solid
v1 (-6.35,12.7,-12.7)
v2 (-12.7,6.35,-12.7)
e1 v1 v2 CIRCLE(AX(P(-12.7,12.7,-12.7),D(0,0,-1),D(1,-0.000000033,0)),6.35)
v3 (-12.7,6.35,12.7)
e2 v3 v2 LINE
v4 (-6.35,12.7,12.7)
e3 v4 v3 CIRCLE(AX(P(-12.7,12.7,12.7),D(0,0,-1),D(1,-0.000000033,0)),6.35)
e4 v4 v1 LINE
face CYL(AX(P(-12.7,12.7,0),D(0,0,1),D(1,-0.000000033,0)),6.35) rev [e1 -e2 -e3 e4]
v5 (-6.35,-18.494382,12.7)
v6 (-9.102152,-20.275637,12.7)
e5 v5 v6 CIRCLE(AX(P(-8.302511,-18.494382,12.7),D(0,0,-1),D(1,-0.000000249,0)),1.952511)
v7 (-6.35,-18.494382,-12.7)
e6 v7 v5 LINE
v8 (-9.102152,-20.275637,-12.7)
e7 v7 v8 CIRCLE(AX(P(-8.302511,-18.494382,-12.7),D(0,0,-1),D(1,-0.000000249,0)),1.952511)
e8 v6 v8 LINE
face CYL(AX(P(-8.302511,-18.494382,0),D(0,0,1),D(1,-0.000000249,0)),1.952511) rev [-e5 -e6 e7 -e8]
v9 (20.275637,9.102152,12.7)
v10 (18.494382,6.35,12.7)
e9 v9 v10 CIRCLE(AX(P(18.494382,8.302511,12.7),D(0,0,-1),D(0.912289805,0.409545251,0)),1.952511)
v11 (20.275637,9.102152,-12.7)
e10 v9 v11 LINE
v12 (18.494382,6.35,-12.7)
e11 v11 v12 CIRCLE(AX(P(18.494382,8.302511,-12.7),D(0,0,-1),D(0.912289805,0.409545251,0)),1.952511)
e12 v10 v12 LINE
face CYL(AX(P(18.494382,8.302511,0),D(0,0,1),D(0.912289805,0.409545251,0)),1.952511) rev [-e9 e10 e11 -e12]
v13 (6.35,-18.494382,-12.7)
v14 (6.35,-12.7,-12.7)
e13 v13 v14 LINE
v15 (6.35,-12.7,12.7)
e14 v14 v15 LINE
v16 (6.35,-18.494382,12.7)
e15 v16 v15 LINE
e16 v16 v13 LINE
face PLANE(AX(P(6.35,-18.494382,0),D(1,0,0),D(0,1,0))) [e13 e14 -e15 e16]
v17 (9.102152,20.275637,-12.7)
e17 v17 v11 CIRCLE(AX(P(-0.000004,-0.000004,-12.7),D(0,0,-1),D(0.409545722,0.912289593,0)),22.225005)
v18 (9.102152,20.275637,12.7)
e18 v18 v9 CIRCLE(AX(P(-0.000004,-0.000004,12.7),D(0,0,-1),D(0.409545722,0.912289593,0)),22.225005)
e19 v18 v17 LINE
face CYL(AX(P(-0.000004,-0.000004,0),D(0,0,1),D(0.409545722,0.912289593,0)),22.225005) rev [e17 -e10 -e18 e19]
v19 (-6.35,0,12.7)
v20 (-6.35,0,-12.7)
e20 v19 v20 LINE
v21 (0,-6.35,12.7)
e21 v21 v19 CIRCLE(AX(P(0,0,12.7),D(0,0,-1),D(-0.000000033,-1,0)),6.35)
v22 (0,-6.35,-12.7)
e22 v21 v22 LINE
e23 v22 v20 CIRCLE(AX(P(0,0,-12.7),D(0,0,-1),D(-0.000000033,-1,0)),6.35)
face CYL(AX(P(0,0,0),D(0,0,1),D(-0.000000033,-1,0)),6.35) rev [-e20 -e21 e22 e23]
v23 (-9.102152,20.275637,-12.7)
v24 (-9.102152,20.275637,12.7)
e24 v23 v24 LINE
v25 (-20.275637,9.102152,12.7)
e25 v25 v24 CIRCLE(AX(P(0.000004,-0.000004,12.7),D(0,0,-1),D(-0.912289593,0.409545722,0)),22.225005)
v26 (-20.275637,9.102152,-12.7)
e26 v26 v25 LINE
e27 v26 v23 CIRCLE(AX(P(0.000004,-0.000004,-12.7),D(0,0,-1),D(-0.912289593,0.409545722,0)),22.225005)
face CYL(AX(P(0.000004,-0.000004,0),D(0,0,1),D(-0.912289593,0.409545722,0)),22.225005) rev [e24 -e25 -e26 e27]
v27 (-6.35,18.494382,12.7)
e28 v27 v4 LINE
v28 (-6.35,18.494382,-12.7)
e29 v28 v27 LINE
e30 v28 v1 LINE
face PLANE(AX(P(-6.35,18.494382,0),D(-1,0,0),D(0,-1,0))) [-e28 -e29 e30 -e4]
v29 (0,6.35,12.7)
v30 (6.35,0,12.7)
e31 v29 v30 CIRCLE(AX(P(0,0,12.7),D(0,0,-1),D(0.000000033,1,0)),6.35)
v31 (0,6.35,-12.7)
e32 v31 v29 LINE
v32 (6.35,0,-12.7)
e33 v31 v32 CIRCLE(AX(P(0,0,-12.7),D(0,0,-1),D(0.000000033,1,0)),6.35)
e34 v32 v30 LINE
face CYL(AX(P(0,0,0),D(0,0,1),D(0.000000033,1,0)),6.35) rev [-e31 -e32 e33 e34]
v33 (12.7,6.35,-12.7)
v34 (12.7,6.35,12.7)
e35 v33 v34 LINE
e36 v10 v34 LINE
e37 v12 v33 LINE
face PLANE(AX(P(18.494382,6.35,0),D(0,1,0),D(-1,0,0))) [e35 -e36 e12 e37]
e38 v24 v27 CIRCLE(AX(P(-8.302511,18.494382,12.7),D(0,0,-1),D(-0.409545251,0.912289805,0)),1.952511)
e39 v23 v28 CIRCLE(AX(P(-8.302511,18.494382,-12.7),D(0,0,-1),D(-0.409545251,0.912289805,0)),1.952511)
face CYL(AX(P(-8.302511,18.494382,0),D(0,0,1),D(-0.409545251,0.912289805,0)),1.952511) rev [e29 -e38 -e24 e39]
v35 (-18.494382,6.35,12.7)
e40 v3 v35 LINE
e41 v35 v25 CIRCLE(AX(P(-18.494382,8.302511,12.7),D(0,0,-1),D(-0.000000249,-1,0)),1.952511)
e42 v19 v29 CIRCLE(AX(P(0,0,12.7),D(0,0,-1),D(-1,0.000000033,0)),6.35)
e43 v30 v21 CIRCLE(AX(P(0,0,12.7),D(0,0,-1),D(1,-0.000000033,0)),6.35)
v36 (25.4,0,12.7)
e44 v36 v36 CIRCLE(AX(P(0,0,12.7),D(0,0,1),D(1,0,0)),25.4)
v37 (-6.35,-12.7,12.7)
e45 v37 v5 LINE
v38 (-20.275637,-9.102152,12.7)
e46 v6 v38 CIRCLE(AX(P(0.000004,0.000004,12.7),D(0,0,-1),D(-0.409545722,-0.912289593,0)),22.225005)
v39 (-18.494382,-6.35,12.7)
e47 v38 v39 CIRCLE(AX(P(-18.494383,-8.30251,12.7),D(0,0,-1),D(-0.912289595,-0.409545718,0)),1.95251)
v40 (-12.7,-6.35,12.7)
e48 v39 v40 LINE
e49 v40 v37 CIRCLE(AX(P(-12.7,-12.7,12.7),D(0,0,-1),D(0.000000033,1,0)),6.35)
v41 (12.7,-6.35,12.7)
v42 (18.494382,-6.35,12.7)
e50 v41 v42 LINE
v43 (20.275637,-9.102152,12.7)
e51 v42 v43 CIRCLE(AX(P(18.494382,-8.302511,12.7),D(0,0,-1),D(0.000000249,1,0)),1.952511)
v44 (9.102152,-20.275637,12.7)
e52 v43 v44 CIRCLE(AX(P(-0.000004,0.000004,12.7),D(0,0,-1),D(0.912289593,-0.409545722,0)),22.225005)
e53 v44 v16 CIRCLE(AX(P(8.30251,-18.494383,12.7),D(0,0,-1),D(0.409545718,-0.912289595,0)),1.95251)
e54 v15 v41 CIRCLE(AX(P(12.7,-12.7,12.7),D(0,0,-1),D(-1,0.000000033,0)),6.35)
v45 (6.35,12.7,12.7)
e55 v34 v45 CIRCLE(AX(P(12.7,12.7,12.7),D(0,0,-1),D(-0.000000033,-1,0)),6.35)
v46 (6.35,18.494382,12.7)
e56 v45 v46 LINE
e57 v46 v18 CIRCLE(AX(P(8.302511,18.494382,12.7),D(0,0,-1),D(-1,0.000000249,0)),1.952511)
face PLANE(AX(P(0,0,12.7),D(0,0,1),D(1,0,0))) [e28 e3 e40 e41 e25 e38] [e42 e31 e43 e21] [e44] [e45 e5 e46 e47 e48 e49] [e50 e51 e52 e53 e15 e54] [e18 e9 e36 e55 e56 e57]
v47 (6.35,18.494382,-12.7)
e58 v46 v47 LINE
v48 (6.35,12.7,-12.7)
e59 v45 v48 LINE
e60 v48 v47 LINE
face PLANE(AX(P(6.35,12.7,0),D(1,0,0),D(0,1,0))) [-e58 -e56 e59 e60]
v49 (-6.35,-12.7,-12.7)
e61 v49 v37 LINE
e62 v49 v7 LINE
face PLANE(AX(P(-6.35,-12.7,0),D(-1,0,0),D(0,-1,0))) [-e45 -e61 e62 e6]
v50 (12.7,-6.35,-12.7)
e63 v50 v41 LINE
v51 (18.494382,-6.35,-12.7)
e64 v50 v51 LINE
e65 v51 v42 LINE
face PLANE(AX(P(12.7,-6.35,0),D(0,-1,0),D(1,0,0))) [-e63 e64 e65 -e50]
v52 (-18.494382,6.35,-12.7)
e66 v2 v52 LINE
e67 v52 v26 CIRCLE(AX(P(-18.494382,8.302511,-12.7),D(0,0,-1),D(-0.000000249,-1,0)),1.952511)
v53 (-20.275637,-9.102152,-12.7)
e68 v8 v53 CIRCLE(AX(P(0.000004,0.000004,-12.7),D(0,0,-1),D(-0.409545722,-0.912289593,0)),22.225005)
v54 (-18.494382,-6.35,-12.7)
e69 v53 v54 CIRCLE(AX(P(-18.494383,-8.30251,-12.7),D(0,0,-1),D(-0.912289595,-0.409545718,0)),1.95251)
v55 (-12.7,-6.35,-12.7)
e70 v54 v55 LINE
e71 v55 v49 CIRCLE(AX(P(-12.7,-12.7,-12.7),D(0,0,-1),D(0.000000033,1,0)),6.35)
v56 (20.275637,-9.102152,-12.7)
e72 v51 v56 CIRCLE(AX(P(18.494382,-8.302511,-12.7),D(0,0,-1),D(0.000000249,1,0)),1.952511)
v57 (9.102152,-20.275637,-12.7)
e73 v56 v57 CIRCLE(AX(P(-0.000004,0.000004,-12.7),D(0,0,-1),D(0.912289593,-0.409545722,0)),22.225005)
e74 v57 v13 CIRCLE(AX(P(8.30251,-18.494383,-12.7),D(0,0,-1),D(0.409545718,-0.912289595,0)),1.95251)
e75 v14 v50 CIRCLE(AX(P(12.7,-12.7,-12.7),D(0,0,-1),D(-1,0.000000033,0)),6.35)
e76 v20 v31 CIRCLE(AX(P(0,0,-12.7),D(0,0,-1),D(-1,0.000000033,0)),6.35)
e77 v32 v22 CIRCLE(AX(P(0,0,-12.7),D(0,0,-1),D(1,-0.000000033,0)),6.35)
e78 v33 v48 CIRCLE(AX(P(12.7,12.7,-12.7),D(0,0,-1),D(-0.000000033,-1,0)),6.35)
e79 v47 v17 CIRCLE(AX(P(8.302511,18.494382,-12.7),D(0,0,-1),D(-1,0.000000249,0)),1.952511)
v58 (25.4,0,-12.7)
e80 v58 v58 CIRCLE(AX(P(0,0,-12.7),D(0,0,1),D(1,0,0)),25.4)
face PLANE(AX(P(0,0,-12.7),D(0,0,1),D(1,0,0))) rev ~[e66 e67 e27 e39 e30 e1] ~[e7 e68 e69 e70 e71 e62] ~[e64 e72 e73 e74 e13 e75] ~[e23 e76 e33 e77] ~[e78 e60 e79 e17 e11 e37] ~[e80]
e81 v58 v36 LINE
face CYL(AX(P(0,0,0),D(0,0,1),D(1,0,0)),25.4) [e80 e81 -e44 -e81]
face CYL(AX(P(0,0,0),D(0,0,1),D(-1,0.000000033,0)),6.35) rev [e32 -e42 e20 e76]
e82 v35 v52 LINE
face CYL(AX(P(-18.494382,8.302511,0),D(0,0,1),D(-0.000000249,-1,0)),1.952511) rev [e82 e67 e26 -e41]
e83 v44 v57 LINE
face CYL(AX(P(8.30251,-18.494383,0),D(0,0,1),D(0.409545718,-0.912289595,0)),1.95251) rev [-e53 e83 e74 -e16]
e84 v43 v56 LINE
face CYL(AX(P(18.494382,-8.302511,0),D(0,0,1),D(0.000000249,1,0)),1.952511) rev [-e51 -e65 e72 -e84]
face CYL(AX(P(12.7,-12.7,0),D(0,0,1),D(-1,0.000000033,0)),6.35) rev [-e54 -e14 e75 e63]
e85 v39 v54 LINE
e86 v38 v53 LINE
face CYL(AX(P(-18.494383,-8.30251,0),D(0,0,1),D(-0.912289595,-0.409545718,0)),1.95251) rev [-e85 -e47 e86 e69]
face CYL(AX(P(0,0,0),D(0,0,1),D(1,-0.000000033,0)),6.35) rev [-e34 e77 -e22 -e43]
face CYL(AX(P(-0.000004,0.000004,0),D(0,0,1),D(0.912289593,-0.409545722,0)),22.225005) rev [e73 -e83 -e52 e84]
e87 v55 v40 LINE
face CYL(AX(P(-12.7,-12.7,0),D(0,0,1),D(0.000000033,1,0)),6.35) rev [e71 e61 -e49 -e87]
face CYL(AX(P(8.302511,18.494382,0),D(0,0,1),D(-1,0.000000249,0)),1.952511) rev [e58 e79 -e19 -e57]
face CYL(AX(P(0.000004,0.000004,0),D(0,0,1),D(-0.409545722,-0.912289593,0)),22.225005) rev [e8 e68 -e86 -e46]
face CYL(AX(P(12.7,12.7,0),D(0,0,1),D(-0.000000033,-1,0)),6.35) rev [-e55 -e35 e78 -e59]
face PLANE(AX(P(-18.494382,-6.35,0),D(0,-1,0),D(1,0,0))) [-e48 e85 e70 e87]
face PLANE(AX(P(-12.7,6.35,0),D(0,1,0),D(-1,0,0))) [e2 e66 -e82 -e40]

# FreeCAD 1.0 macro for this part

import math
import FreeCAD as App
import Part
import Sketcher
Q = App.Units.Quantity

doc = App.newDocument("Part")
body = doc.addObject("PartDesign::Body", "Body")

# Sketch on XY plane
sketch1 = body.newObject("Sketcher::SketchObject", "Sketch")
sketch1.AttachmentSupport = (doc.getObject("XY_Plane"), [""])
sketch1.MapMode = "FlatFace"
sketch1.addGeometry([
    Part.Circle(App.Vector(0, 0, 0), App.Vector(0, 0, 1), 25.4),  # 0
    Part.LineSegment(App.Vector(-18.494382, -6.35, 0), App.Vector(-12.7, -6.35, 0)),  # 1
    Part.ArcOfCircle(Part.Circle(App.Vector(-12.7, -12.7, 0), App.Vector(0, 0, 1), 6.35), math.radians(0.000002), math.radians(89.999998)),  # 2
    Part.LineSegment(App.Vector(-6.35, -12.7, 0), App.Vector(-6.35, -18.494382, 0)),  # 3
    Part.ArcOfCircle(Part.Circle(App.Vector(-8.302511, -18.494382, 0), App.Vector(0, 0, 1), 1.952511), math.radians(-114.176271), math.radians(-0.000014)),  # 4
    Part.ArcOfCircle(Part.Circle(App.Vector(0.000004, 0.000004, 0), App.Vector(0, 0, 1), 22.225005), math.radians(-155.823699), math.radians(-114.176301)),  # 5
    Part.ArcOfCircle(Part.Circle(App.Vector(-18.494383, -8.30251, 0), App.Vector(0, 0, 1), 1.95251), math.radians(89.999985), math.radians(204.176301)),  # 6
    Part.LineSegment(App.Vector(6.35, -18.494382, 0), App.Vector(6.35, -12.7, 0)),  # 7
    Part.ArcOfCircle(Part.Circle(App.Vector(12.7, -12.7, 0), App.Vector(0, 0, 1), 6.35), math.radians(90.000002), math.radians(179.999998)),  # 8
    Part.LineSegment(App.Vector(12.7, -6.35, 0), App.Vector(18.494382, -6.35, 0)),  # 9
    Part.ArcOfCircle(Part.Circle(App.Vector(18.494382, -8.302511, 0), App.Vector(0, 0, 1), 1.952511), math.radians(-24.176271), math.radians(89.999986)),  # 10
    Part.ArcOfCircle(Part.Circle(App.Vector(-0.000004, 0.000004, 0), App.Vector(0, 0, 1), 22.225005), math.radians(-65.823699), math.radians(-24.176301)),  # 11
    Part.ArcOfCircle(Part.Circle(App.Vector(8.30251, -18.494383, 0), App.Vector(0, 0, 1), 1.95251), math.radians(179.999985), math.radians(294.176301)),  # 12
    Part.ArcOfCircle(Part.Circle(App.Vector(-18.494382, 8.302511, 0), App.Vector(0, 0, 1), 1.952511), math.radians(155.823729), math.radians(269.999986)),  # 13
    Part.ArcOfCircle(Part.Circle(App.Vector(0.000004, -0.000004, 0), App.Vector(0, 0, 1), 22.225005), math.radians(114.176301), math.radians(155.823699)),  # 14
    Part.ArcOfCircle(Part.Circle(App.Vector(-8.302511, 18.494382, 0), App.Vector(0, 0, 1), 1.952511), math.radians(0.000014), math.radians(114.176271)),  # 15
    Part.LineSegment(App.Vector(-6.35, 18.494382, 0), App.Vector(-6.35, 12.7, 0)),  # 16
    Part.ArcOfCircle(Part.Circle(App.Vector(-12.7, 12.7, 0), App.Vector(0, 0, 1), 6.35), math.radians(-89.999998), math.radians(-0.000002)),  # 17
    Part.LineSegment(App.Vector(-12.7, 6.35, 0), App.Vector(-18.494382, 6.35, 0)),  # 18
    Part.ArcOfCircle(Part.Circle(App.Vector(0, 0, 0), App.Vector(0, 0, 1), 6.35), math.radians(90.000002), math.radians(179.999998)),  # 19
    Part.ArcOfCircle(Part.Circle(App.Vector(0, 0, 0), App.Vector(0, 0, 1), 6.35), math.radians(0.000002), math.radians(89.999998)),  # 20
    Part.ArcOfCircle(Part.Circle(App.Vector(0, 0, 0), App.Vector(0, 0, 1), 6.35), math.radians(-89.999998), math.radians(-0.000002)),  # 21
    Part.ArcOfCircle(Part.Circle(App.Vector(0, 0, 0), App.Vector(0, 0, 1), 6.35), math.radians(-179.999998), math.radians(-90.000002)),  # 22
    Part.LineSegment(App.Vector(18.494382, 6.35, 0), App.Vector(12.7, 6.35, 0)),  # 23
    Part.ArcOfCircle(Part.Circle(App.Vector(12.7, 12.7, 0), App.Vector(0, 0, 1), 6.35), math.radians(-179.999998), math.radians(-90.000002)),  # 24
    Part.LineSegment(App.Vector(6.35, 12.7, 0), App.Vector(6.35, 18.494382, 0)),  # 25
    Part.ArcOfCircle(Part.Circle(App.Vector(8.302511, 18.494382, 0), App.Vector(0, 0, 1), 1.952511), math.radians(65.823729), math.radians(179.999986)),  # 26
    Part.ArcOfCircle(Part.Circle(App.Vector(-0.000004, -0.000004, 0), App.Vector(0, 0, 1), 22.225005), math.radians(24.176301), math.radians(65.823699)),  # 27
    Part.ArcOfCircle(Part.Circle(App.Vector(18.494382, 8.302511, 0), App.Vector(0, 0, 1), 1.952511), math.radians(-89.999986), math.radians(24.176271)),  # 28
], False)
sketch1.addConstraint([
    Sketcher.Constraint("Tangent", 1, 2, 2, 2),
    Sketcher.Constraint("Tangent", 2, 1, 3, 1),
    Sketcher.Constraint("Tangent", 3, 2, 4, 2),
    Sketcher.Constraint("Tangent", 4, 1, 5, 2),
    Sketcher.Constraint("Tangent", 5, 1, 6, 2),
    Sketcher.Constraint("Tangent", 6, 1, 1, 1),
    Sketcher.Constraint("Tangent", 7, 2, 8, 2),
    Sketcher.Constraint("Tangent", 8, 1, 9, 1),
    Sketcher.Constraint("Tangent", 9, 2, 10, 2),
    Sketcher.Constraint("Tangent", 10, 1, 11, 2),
    Sketcher.Constraint("Tangent", 11, 1, 12, 2),
    Sketcher.Constraint("Tangent", 12, 1, 7, 1),
    Sketcher.Constraint("Tangent", 13, 1, 14, 2),
    Sketcher.Constraint("Tangent", 14, 1, 15, 2),
    Sketcher.Constraint("Tangent", 15, 1, 16, 1),
    Sketcher.Constraint("Tangent", 16, 2, 17, 2),
    Sketcher.Constraint("Tangent", 17, 1, 18, 1),
    Sketcher.Constraint("Tangent", 18, 2, 13, 2),
    Sketcher.Constraint("Tangent", 19, 1, 20, 2),
    Sketcher.Constraint("Tangent", 20, 1, 21, 2),
    Sketcher.Constraint("Tangent", 21, 1, 22, 2),
    Sketcher.Constraint("Tangent", 22, 1, 19, 2),
    Sketcher.Constraint("Tangent", 23, 2, 24, 2),
    Sketcher.Constraint("Tangent", 24, 1, 25, 1),
    Sketcher.Constraint("Tangent", 25, 2, 26, 2),
    Sketcher.Constraint("Tangent", 26, 1, 27, 2),
    Sketcher.Constraint("Tangent", 27, 1, 28, 2),
    Sketcher.Constraint("Tangent", 28, 1, 23, 1),
    Sketcher.Constraint("Horizontal", 1),
    Sketcher.Constraint("Vertical", 3),
    Sketcher.Constraint("Vertical", 7),
    Sketcher.Constraint("Horizontal", 9),
    Sketcher.Constraint("Vertical", 16),
    Sketcher.Constraint("Horizontal", 18),
    Sketcher.Constraint("Horizontal", 23),
    Sketcher.Constraint("Vertical", 25),
    Sketcher.Constraint("Coincident", 0, 3, -1, 1),
    Sketcher.Constraint("Coincident", 5, 3, -1, 1),
    Sketcher.Constraint("Coincident", 11, 3, -1, 1),
    Sketcher.Constraint("Coincident", 14, 3, -1, 1),
    Sketcher.Constraint("Coincident", 19, 3, -1, 1),
    Sketcher.Constraint("Coincident", 27, 3, -1, 1),
    Sketcher.Constraint("Equal", 4, 6),
    Sketcher.Constraint("Equal", 2, 8),
    Sketcher.Constraint("Equal", 6, 10),
    Sketcher.Constraint("Equal", 5, 11),
    Sketcher.Constraint("Equal", 10, 12),
    Sketcher.Constraint("Equal", 12, 13),
    Sketcher.Constraint("Equal", 11, 14),
    Sketcher.Constraint("Equal", 13, 15),
    Sketcher.Constraint("Equal", 8, 17),
    Sketcher.Constraint("Equal", 17, 19),
    Sketcher.Constraint("Equal", 19, 20),
    Sketcher.Constraint("Equal", 22, 24),
    Sketcher.Constraint("Equal", 15, 26),
    Sketcher.Constraint("Equal", 14, 27),
    Sketcher.Constraint("Equal", 26, 28),
    Sketcher.Constraint("Symmetric", 8, 3, 17, 3, -1, 1),
    Sketcher.Constraint("Symmetric", 2, 3, 24, 3, -1, 1),
    Sketcher.Constraint("Symmetric", 2, 3, 8, 3, -2),
    Sketcher.Constraint("PointOnObject", 19, 1, -2),
    Sketcher.Constraint("PointOnObject", 20, 1, -1),
    Sketcher.Constraint("PointOnObject", 21, 1, -2),
    Sketcher.Constraint("PointOnObject", 22, 1, -1),
    Sketcher.Constraint("Horizontal", 18, 2, 19, 1),
    Sketcher.Constraint("Vertical", 12, 1, 20, 1),
    Sketcher.Constraint("Diameter", 0, Q("2 in")),
    Sketcher.Constraint("Radius", 2, Q("0.25 in")),
    Sketcher.Constraint("Radius", 5, Q("0.8750002 in")),
    Sketcher.Constraint("Radius", 4, Q("1.952511 mm")),
])
pad1 = body.newObject("PartDesign::Pad", "Pad")
pad1.Profile = sketch1
pad1.Length = Q("1 in")
pad1.Midplane = True

doc.recompute()
